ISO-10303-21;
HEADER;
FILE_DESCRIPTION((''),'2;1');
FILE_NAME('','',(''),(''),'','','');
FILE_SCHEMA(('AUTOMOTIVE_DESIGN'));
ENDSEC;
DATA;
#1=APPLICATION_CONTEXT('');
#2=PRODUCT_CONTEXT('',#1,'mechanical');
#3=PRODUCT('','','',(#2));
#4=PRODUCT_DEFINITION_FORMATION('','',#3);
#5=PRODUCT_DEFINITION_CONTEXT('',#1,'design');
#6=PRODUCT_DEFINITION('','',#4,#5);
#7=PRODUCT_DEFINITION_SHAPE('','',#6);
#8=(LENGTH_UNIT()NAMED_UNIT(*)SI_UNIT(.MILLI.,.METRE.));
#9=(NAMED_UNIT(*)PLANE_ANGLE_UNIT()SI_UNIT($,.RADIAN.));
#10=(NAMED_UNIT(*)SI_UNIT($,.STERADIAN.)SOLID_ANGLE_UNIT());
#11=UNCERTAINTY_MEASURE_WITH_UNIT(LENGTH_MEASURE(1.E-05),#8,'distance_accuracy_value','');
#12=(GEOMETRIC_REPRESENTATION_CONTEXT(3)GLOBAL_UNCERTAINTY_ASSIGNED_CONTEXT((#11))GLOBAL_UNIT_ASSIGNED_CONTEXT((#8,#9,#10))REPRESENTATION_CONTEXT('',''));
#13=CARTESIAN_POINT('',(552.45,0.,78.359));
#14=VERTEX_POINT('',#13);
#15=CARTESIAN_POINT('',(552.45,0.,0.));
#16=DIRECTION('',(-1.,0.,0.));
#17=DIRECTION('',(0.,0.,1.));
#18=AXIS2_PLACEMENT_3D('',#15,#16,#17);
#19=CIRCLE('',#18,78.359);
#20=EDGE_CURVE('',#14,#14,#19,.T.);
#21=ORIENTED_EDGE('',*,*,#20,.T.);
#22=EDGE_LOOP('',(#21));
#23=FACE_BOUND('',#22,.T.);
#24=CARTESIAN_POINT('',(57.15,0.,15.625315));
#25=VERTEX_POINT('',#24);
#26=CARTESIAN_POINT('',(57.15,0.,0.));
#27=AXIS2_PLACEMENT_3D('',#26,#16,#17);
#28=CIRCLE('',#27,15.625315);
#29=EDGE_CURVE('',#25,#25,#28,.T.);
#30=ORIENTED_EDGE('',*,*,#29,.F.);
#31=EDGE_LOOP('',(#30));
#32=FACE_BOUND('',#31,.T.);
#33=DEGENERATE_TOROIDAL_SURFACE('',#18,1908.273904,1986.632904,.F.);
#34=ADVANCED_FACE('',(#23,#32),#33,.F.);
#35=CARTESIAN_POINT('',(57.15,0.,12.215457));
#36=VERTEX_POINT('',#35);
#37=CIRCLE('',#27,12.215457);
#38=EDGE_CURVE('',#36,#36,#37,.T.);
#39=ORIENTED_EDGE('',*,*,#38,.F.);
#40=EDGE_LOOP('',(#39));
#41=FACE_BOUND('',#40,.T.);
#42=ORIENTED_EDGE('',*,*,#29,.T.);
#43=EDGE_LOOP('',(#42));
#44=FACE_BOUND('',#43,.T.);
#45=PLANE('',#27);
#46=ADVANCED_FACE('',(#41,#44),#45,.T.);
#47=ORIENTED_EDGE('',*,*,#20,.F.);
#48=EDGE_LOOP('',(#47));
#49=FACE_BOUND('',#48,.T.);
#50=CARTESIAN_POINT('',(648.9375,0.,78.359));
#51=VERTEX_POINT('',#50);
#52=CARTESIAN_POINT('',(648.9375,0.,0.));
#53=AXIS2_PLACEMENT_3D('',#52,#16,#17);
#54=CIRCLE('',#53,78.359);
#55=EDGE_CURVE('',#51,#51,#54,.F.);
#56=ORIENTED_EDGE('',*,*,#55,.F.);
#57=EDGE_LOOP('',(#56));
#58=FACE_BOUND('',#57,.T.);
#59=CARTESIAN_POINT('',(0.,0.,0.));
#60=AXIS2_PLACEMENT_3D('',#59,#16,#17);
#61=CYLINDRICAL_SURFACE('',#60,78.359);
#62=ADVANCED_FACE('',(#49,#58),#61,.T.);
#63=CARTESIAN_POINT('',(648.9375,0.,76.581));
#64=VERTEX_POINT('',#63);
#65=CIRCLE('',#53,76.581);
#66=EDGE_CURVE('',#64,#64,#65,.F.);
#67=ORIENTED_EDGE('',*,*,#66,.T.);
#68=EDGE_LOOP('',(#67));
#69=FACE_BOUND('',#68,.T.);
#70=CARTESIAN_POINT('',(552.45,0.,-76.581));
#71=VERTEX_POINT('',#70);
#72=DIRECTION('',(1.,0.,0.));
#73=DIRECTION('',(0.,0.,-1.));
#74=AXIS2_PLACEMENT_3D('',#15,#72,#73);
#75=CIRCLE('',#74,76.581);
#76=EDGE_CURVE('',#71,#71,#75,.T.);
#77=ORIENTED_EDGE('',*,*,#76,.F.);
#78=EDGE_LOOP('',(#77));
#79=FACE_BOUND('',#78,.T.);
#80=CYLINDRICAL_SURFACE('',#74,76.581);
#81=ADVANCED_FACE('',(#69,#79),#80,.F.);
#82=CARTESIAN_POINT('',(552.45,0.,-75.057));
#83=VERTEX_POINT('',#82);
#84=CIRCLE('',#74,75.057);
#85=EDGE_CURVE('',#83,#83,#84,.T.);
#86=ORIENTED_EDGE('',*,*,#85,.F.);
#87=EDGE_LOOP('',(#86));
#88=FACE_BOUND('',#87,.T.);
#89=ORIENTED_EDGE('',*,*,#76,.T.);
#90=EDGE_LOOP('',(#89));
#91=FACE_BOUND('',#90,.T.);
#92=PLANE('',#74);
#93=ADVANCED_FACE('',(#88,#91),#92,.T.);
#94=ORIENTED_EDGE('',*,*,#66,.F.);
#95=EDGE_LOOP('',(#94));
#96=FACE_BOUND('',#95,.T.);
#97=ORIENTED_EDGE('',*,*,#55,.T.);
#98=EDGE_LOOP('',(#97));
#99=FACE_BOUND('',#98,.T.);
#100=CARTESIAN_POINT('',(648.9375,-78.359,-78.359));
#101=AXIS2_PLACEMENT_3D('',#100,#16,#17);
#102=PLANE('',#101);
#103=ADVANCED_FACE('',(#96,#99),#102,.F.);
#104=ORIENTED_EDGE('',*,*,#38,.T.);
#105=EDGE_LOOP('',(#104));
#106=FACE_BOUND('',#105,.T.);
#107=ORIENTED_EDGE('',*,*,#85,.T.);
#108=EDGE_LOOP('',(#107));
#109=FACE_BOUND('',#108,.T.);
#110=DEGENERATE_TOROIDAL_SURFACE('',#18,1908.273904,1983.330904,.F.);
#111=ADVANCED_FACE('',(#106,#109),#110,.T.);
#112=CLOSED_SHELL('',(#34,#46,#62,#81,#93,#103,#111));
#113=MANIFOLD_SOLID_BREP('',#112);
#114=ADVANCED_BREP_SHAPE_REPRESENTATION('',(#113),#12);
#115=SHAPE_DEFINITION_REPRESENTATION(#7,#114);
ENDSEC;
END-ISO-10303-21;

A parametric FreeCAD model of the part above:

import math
import FreeCAD as App
import Part
import Sketcher
Q = App.Units.Quantity


def faces_at(feature, points):
    """Names of the faces that lie closest to the given points."""
    faces = feature.Shape.Faces
    near = lambda p: min(range(len(faces)), key=lambda i: faces[i].distToShape(Part.Vertex(*p))[0])
    return sorted({f"Face{near(p) + 1}" for p in points})


def add_polygon(sketch, points):
    """Adds a closed chain of lines whose ends are joined by coincident constraints."""
    first, n = sketch.GeometryCount, len(points)
    for a, b in zip(points, points[1:] + points[:1]):
        sketch.addGeometry(Part.LineSegment(App.Vector(*a, 0), App.Vector(*b, 0)), False)
    for i in range(n):
        sketch.addConstraint(Sketcher.Constraint("Coincident", first + i, 2, first + (i + 1) % n, 1))

doc = App.newDocument("Part")
body = doc.addObject("PartDesign::Body", "Body")

sketch1 = doc.addObject("Sketcher::SketchObject", "Sketch")
body.addObject(sketch1)
sketch1.AttachmentSupport = (doc.XY_Plane, [""])
sketch1.MapMode = "FlatFace"
sketch1.addGeometry([
    Part.LineSegment(App.Vector(57.15, 0, 0), App.Vector(654.05, 0, 0)),
    Part.LineSegment(App.Vector(654.05, 0, 0), App.Vector(654.05, 78.359, 0)),
    Part.LineSegment(App.Vector(654.05, 78.359, 0), App.Vector(552.45, 78.359, 0)),
    Part.ArcOfCircle(Part.Circle(App.Vector(552.45, -1908.273904, 0), App.Vector(0, 0, 1), 1986.632904), math.radians(90), math.radians(104.437059)),
    Part.LineSegment(App.Vector(57.15, 15.625315, 0), App.Vector(57.15, 0, 0)),
], False)
sketch1.addConstraint([
    Sketcher.Constraint("Coincident", 0, 2, 1, 1),
    Sketcher.Constraint("Coincident", 1, 2, 2, 1),
    Sketcher.Constraint("Tangent", 2, 2, 3, 1),
    Sketcher.Constraint("Coincident", 3, 2, 4, 1),
    Sketcher.Constraint("Coincident", 4, 2, 0, 1),
    Sketcher.Constraint("Horizontal", 0),
    Sketcher.Constraint("Vertical", 1),
    Sketcher.Constraint("Horizontal", 2),
    Sketcher.Constraint("Vertical", 4),
    Sketcher.Constraint("PointOnObject", 0, 2, -1),
    Sketcher.Constraint("DistanceX", 2, 2, 2, 1, Q("4 in")),
    Sketcher.Constraint("DistanceX", 0, 1, 0, 2, Q("23.5 in")),
    Sketcher.Constraint("DistanceY", 1, 1, 1, 2, Q("3.085 in")),
    Sketcher.Constraint("DistanceX", -1, 1, 3, 3, Q("21.75 in")),
    Sketcher.Constraint("Radius", 3, Q("1986.632904 mm")),
])
revolution = doc.addObject("PartDesign::Revolution", "Revolution")
body.addObject(revolution)
revolution.Profile = sketch1
revolution.ReferenceAxis = (sketch1, ["H_Axis"])
revolution.Angle = 360
doc.recompute()

thickness = doc.addObject("PartDesign::Thickness", "Thickness")
body.addObject(thickness)
thickness.Base = (revolution, faces_at(revolution, [(654.05, 0, 0), (57.15, 0, 0)]))
thickness.Value = Q("0.13 in")
thickness.Reversed = True
thickness.Join = "Intersection"

sketch2 = doc.addObject("Sketcher::SketchObject", "Sketch001")
body.addObject(sketch2)
sketch2.AttachmentSupport = (doc.YZ_Plane, [""])
sketch2.MapMode = "FlatFace"
sketch2.AttachmentOffset = App.Placement(App.Vector(0, 0, 25.75 * 25.4), App.Rotation())
sketch2.addGeometry(Part.Circle(App.Vector(0, 0, 0), App.Vector(0, 0, 1), 76.581), False)
sketch2.addConstraint([
    Sketcher.Constraint("Coincident", 0, 3, -1, 1),
    Sketcher.Constraint("Diameter", 0, Q("6.03 in")),
])
pocket1 = doc.addObject("PartDesign::Pocket", "Pocket")
body.addObject(pocket1)
pocket1.Profile = sketch2
pocket1.Length = Q("4 in")

sketch3 = doc.addObject("Sketcher::SketchObject", "Sketch002")
body.addObject(sketch3)
sketch3.AttachmentSupport = (doc.XZ_Plane, [""])
sketch3.MapMode = "FlatFace"
add_polygon(sketch3, [(648.9375, -78.359), (648.9375, 78.359), (654.05, 78.359), (654.05, -78.359)])
sketch3.addConstraint([
    Sketcher.Constraint("Vertical", 0),
    Sketcher.Constraint("Horizontal", 1),
    Sketcher.Constraint("Vertical", 2),
    Sketcher.Constraint("Horizontal", 3),
    Sketcher.Constraint("DistanceY", 0, 1, 0, 2, Q("6.17 in")),
    Sketcher.Constraint("DistanceX", -1, 1, 1, 2, Q("25.75 in")),
    Sketcher.Constraint("DistanceY", -1, 1, 0, 2, Q("3.085 in")),
    Sketcher.Constraint("DistanceX", 1, 1, 1, 2, Q("5.1125 mm")),
])
pocket2 = doc.addObject("PartDesign::Pocket", "Pocket001")
body.addObject(pocket2)
pocket2.Profile = sketch3
pocket2.Type = "ThroughAll"
pocket2.Midplane = True

doc.recompute()
